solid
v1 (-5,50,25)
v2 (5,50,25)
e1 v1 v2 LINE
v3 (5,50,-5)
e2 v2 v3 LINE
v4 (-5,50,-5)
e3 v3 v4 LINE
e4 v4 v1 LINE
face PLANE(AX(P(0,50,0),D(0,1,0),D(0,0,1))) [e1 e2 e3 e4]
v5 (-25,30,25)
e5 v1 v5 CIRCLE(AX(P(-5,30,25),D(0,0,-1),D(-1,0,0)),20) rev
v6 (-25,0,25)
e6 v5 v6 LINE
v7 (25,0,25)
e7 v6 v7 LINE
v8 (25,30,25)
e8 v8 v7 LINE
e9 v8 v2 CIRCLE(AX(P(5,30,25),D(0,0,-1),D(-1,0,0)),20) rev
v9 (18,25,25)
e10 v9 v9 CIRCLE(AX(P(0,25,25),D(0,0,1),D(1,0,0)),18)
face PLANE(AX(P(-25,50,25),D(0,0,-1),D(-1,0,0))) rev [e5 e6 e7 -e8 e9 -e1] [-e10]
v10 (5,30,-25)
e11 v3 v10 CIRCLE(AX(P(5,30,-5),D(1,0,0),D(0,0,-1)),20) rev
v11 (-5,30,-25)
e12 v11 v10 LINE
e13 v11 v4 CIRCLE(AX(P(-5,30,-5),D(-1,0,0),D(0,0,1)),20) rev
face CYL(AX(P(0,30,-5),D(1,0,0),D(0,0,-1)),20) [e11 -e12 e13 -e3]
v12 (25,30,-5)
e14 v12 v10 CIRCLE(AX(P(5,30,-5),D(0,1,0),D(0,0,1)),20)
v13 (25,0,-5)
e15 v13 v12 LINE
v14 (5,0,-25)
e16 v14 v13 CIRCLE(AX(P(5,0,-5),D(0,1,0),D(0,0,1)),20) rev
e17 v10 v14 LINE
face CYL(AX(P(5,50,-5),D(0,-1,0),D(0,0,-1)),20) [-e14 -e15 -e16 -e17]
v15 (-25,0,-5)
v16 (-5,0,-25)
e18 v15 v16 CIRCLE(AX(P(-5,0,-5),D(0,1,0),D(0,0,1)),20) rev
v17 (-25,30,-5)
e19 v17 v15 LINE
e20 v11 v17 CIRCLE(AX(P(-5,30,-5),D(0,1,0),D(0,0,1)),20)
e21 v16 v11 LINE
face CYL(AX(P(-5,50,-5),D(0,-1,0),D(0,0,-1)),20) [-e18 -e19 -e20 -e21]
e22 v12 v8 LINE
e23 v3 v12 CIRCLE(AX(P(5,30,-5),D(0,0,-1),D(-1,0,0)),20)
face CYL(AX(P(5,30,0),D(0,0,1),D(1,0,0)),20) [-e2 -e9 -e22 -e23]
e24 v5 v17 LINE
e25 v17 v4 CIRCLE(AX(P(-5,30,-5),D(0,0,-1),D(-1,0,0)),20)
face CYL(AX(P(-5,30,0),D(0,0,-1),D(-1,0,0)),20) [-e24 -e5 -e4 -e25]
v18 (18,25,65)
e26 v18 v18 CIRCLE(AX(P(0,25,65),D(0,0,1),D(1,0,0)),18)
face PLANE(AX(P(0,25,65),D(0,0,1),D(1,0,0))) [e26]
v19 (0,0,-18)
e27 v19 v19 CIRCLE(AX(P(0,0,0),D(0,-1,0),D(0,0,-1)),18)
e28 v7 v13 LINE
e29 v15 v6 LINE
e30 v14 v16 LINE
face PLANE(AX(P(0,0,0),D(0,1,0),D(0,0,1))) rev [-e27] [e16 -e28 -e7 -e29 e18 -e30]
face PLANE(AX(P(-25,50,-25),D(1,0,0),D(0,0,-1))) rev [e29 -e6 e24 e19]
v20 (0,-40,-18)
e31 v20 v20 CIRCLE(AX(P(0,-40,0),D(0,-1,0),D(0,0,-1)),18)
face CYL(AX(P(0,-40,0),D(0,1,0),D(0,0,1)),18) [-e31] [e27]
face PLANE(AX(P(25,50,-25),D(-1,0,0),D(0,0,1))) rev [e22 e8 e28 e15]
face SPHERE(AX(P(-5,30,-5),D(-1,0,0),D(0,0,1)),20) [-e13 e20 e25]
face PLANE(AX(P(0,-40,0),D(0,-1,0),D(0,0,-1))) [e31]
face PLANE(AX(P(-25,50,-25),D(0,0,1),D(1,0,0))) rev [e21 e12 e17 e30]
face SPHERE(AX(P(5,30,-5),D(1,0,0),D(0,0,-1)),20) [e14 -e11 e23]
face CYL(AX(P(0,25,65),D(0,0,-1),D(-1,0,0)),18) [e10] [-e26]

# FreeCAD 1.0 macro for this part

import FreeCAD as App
import Part
import Sketcher
Q = App.Units.Quantity


def edges_at(feature, points):
    """Names of the edges that pass closest to the given points."""
    edges = feature.Shape.Edges
    near = lambda p: min(range(len(edges)), key=lambda i: edges[i].distToShape(Part.Vertex(*p))[0])
    return sorted({f"Edge{near(p) + 1}" for p in points})

doc = App.newDocument("Part")
params = doc.addObject("Spreadsheet::Sheet", "Params")
for row, (alias, value) in enumerate([
    ("sketch1_width", "50 mm"),
    ("pad1_length", "50 mm"),
    ("sketch2_diameter", "36 mm"),
    ("pad2_length", "40 mm"),
    ("sketch3_diameter", "36 mm"),
    ("pad3_length", "40 mm"),
    ("fillet_radius", "20 mm"),
], start=1):
    params.set(f"A{row}", alias)
    params.set(f"B{row}", "=" + value)
    params.setAlias(f"B{row}", alias)

body = doc.addObject("PartDesign::Body", "Body")

sketch1 = body.newObject("Sketcher::SketchObject", "Sketch")
sketch1.AttachmentSupport = (doc.getObject("XZ_Plane"), [""])
sketch1.MapMode = "FlatFace"
sketch1.addGeometry(Part.LineSegment(App.Vector(-25, -25, 0), App.Vector(-25, 25, 0)), False)
sketch1.addGeometry(Part.LineSegment(App.Vector(-25, 25, 0), App.Vector(25, 25, 0)), False)
sketch1.addGeometry(Part.LineSegment(App.Vector(25, 25, 0), App.Vector(25, -25, 0)), False)
sketch1.addGeometry(Part.LineSegment(App.Vector(25, -25, 0), App.Vector(-25, -25, 0)), False)
sketch1.addConstraint(Sketcher.Constraint("Coincident", 0, 2, 1, 1))
sketch1.addConstraint(Sketcher.Constraint("Coincident", 1, 2, 2, 1))
sketch1.addConstraint(Sketcher.Constraint("Coincident", 2, 2, 3, 1))
sketch1.addConstraint(Sketcher.Constraint("Coincident", 3, 2, 0, 1))
sketch1.addConstraint(Sketcher.Constraint("Vertical", 0))
sketch1.addConstraint(Sketcher.Constraint("Horizontal", 1))
sketch1.addConstraint(Sketcher.Constraint("Vertical", 2))
sketch1.addConstraint(Sketcher.Constraint("Horizontal", 3))
sketch1.addConstraint(Sketcher.Constraint("Symmetric", 0, 2, 2, 2, -1, 1))
sketch1.addConstraint(Sketcher.Constraint("Equal", 3, 0))
sketch1.addConstraint(Sketcher.Constraint("DistanceX", 1, 1, 1, 2, Q("50 mm")))
sketch1.setExpression("Constraints[10]", "Params.sketch1_width")
pad1 = body.newObject("PartDesign::Pad", "Pad")
pad1.Profile = sketch1
pad1.setExpression("Length", "Params.pad1_length")
pad1.Reversed = True

sketch2 = body.newObject("Sketcher::SketchObject", "Sketch001")
sketch2.AttachmentSupport = (doc.getObject("XY_Plane"), [""])
sketch2.MapMode = "FlatFace"
sketch2.AttachmentOffset = App.Placement(App.Vector(0, 0, 25), App.Rotation())
sketch2.addGeometry(Part.Circle(App.Vector(0, 25, 0), App.Vector(0, 0, 1), 18), False)
sketch2.addConstraint(Sketcher.Constraint("PointOnObject", 0, 3, -2))
sketch2.addConstraint(Sketcher.Constraint("Diameter", 0, Q("36 mm")))
sketch2.addConstraint(Sketcher.Constraint("DistanceY", -1, 1, 0, 3, Q("25 mm")))
sketch2.setExpression("Constraints[1]", "Params.sketch2_diameter")
pad2 = body.newObject("PartDesign::Pad", "Pad001")
pad2.Profile = sketch2
pad2.setExpression("Length", "Params.pad2_length")

sketch3 = body.newObject("Sketcher::SketchObject", "Sketch002")
sketch3.AttachmentSupport = (doc.getObject("XZ_Plane"), [""])
sketch3.MapMode = "FlatFace"
sketch3.addGeometry(Part.Circle(App.Vector(0, 0, 0), App.Vector(0, 0, 1), 18), False)
sketch3.addConstraint(Sketcher.Constraint("Coincident", 0, 3, -1, 1))
sketch3.addConstraint(Sketcher.Constraint("Diameter", 0, Q("36 mm")))
sketch3.setExpression("Constraints[1]", "Params.sketch3_diameter")
pad3 = body.newObject("PartDesign::Pad", "Pad002")
pad3.Profile = sketch3
pad3.setExpression("Length", "Params.pad3_length")
doc.recompute()

fillet = body.newObject("PartDesign::Fillet", "Fillet")
fillet.Base = (pad3, edges_at(pad3, [
    (25, 50, 0),
    (0, 50, -25),
    (-25, 50, 0),
    (-25, 25, -25),
    (25, 25, -25),
]))
fillet.setExpression("Radius", "Params.fillet_radius")

doc.recompute()
